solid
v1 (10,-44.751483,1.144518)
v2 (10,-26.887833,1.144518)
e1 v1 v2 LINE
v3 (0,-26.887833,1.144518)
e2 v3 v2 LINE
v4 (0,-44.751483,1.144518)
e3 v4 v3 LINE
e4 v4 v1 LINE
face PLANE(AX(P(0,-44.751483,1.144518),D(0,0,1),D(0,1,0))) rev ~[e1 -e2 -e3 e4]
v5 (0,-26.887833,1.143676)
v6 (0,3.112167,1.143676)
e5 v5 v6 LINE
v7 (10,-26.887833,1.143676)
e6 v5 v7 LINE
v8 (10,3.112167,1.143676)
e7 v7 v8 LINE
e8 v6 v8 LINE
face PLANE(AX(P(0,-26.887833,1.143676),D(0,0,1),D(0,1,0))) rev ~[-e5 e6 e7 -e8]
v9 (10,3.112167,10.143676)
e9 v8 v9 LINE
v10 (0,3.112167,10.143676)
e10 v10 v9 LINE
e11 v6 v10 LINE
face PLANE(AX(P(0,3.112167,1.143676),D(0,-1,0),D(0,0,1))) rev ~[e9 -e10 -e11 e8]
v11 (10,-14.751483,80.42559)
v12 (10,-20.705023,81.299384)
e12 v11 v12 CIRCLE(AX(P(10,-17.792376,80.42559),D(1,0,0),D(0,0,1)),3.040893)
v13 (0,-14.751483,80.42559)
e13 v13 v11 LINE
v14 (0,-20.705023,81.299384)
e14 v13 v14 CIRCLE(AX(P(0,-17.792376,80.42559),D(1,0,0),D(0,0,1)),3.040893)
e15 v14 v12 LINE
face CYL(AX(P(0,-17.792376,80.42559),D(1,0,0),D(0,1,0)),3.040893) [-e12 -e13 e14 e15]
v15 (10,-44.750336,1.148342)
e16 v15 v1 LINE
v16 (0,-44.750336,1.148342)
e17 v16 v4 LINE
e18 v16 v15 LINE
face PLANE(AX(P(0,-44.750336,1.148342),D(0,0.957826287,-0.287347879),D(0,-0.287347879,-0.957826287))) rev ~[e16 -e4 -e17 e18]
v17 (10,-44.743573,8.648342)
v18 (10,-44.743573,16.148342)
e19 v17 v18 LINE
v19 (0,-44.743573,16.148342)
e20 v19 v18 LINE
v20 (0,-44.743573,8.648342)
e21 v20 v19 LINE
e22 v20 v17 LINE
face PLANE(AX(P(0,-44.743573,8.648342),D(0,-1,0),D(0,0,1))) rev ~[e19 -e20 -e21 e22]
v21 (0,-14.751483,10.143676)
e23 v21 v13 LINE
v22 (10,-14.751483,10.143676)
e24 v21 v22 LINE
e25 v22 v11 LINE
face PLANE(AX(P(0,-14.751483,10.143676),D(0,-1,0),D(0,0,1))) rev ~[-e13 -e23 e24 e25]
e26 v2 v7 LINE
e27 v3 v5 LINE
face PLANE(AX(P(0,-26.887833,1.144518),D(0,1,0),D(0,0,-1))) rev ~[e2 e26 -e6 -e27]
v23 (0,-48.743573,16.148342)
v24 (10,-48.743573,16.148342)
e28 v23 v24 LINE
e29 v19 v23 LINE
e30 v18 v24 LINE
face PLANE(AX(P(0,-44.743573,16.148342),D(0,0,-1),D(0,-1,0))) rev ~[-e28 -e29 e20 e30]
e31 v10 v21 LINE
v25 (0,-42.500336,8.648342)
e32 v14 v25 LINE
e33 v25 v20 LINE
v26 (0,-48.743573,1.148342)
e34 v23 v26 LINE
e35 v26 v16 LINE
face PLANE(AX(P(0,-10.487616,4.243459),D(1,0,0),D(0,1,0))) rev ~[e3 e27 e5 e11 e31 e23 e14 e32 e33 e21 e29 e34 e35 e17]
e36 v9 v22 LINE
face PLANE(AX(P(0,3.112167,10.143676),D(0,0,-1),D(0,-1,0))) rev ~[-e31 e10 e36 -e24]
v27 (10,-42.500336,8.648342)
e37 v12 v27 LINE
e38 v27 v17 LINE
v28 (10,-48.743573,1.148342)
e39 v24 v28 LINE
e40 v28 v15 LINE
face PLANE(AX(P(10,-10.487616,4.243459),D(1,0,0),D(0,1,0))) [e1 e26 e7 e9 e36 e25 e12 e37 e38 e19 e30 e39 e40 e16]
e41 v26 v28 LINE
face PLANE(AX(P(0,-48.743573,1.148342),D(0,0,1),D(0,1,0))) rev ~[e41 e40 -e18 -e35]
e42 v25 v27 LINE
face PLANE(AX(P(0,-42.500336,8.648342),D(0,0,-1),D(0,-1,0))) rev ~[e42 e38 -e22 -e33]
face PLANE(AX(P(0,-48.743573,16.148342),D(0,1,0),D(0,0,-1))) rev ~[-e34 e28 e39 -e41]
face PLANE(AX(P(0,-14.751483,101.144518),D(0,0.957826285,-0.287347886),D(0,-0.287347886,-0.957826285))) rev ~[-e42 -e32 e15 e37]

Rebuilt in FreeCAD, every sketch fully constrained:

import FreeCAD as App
import Part
import Sketcher
Q = App.Units.Quantity


def edges_at(feature, points):
    """Names of the edges that pass closest to the given points."""
    edges = feature.Shape.Edges
    near = lambda p: min(range(len(edges)), key=lambda i: edges[i].distToShape(Part.Vertex(*p))[0])
    return sorted({f"Edge{near(p) + 1}" for p in points})


def add_polygon(sketch, points):
    """Adds a closed chain of lines whose ends are joined by coincident constraints."""
    first, n = sketch.GeometryCount, len(points)
    for a, b in zip(points, points[1:] + points[:1]):
        sketch.addGeometry(Part.LineSegment(App.Vector(*a, 0), App.Vector(*b, 0)), False)
    for i in range(n):
        sketch.addConstraint(Sketcher.Constraint("Coincident", first + i, 2, first + (i + 1) % n, 1))

doc = App.newDocument("Part")
body = doc.addObject("PartDesign::Body", "Body")

# Sketch on YZ plane
sketch1 = body.newObject("Sketcher::SketchObject", "Sketch")
sketch1.AttachmentSupport = (doc.getObject("YZ_Plane"), [""])
sketch1.MapMode = "FlatFace"
add_polygon(sketch1, [(-48.7436, 1.1483), (-44.7503, 1.1483), (-44.7515, 1.1445), (-26.8878, 1.1445), (-26.8878, 1.1437), (3.1122, 1.1437), (3.1122, 10.1437), (-14.7515, 10.1437), (-14.7515, 101.1445), (-42.5003, 8.6483), (-44.7436, 8.6483), (-44.7436, 16.1483), (-48.7436, 16.1483)])  # lines 0-12
sketch1.addConstraint([
    Sketcher.Constraint("Horizontal", 0),
    Sketcher.Constraint("Horizontal", 2),
    Sketcher.Constraint("Vertical", 3),
    Sketcher.Constraint("Horizontal", 4),
    Sketcher.Constraint("Vertical", 5),
    Sketcher.Constraint("Horizontal", 6),
    Sketcher.Constraint("Vertical", 7),
    Sketcher.Constraint("Horizontal", 9),
    Sketcher.Constraint("Vertical", 10),
    Sketcher.Constraint("Horizontal", 11),
    Sketcher.Constraint("Vertical", 12),
    Sketcher.Constraint("Parallel", 1, 8),
    Sketcher.Constraint("Equal", 2, 6),
    Sketcher.Constraint("DistanceX", 4, 1, 4, 2, Q("30 mm")),
    Sketcher.Constraint("DistanceX", 11, 2, 11, 1, Q("4 mm")),
    Sketcher.Constraint("DistanceY", 5, 1, 5, 2, Q("9 mm")),
    Sketcher.Constraint("DistanceY", 12, 2, 12, 1, Q("15 mm")),
    Sketcher.Constraint("DistanceY", 10, 1, 10, 2, Q("7.5 mm")),
    Sketcher.Constraint("DistanceY", 2, 2, 7, 2, Q("100 mm")),
    Sketcher.Constraint("DistanceX", 0, 2, 8, 2, Q("2.25 mm")),
    Sketcher.Constraint("DistanceX", 2, 1, 2, 2, Q("17.863649 mm")),
    Sketcher.Constraint("DistanceY", 3, 2, 3, 1, Q("0.000842 mm")),
    Sketcher.Constraint("DistanceX", 0, 1, 0, 2, Q("3.993238 mm")),
    Sketcher.Constraint("DistanceY", -1, 1, 0, 2, Q("1.148342 mm")),
    Sketcher.Constraint("DistanceX", 1, 2, 9, 2, Q("0.007909 mm")),
    Sketcher.Constraint("DistanceX", 0, 2, -1, 1, Q("44.750336 mm")),
])
pad1 = body.newObject("PartDesign::Pad", "Pad")
pad1.Profile = sketch1
pad1.Length = 10
doc.recompute()

fillet = body.newObject("PartDesign::Fillet", "Fillet")
fillet.Base = (pad1, edges_at(pad1, [(5, -14.751, 101.145)]))
fillet.Radius = 3.040893

doc.recompute()
